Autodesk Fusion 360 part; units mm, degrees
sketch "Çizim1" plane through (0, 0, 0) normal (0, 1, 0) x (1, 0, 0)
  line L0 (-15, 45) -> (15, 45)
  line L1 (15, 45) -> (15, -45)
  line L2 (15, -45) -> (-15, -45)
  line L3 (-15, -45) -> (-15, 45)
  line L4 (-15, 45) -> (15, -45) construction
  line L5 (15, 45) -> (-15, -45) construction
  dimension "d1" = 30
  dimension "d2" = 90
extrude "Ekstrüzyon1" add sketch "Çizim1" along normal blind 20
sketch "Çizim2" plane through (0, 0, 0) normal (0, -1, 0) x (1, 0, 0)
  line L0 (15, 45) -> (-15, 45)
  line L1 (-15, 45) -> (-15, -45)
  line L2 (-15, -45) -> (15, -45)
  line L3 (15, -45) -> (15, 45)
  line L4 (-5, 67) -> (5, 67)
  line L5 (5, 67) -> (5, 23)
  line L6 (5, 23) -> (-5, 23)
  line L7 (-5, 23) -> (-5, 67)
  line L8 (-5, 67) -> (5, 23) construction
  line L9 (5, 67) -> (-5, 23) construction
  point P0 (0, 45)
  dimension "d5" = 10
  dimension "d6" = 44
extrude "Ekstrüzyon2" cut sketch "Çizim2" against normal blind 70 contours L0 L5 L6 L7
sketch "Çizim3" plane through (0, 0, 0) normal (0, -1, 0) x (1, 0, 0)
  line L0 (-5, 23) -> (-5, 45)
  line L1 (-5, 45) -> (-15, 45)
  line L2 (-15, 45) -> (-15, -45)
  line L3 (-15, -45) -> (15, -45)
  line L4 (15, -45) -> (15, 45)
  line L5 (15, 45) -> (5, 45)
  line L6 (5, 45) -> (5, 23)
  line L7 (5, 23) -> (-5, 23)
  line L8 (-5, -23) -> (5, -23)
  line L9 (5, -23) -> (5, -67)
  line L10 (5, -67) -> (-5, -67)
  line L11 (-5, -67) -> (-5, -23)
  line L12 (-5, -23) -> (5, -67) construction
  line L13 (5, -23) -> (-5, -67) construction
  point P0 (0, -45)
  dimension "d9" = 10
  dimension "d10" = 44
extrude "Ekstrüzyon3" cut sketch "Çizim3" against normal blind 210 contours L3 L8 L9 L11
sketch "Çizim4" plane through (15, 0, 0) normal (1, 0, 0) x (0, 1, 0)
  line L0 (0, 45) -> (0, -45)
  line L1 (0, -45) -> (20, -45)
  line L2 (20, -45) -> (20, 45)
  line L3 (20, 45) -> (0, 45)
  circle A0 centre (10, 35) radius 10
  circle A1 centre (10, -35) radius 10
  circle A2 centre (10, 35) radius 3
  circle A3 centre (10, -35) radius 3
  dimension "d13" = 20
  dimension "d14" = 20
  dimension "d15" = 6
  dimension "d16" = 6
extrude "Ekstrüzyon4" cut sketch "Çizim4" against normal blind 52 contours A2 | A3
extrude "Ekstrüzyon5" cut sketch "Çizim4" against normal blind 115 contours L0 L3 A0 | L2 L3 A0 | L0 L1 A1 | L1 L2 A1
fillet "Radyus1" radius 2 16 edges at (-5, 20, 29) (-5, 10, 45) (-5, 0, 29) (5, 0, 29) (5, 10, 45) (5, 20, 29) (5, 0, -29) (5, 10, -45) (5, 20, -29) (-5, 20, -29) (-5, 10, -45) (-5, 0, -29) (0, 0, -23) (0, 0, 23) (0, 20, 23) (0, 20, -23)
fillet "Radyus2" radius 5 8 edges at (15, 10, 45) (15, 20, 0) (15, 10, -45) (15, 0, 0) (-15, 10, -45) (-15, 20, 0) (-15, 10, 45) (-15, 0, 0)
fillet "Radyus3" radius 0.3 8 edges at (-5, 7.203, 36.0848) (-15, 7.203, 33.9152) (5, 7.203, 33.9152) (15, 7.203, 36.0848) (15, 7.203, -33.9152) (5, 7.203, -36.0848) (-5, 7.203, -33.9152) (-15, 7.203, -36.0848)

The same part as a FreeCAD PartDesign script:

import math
import FreeCAD as App
import Part
import Sketcher
from FreeCAD import Vector
Q = App.Units.Quantity


def edges_at(feature, points):
    """Names of the edges that pass closest to the given points."""
    edges = feature.Shape.Edges
    near = lambda p: min(range(len(edges)), key=lambda i: edges[i].distToShape(Part.Vertex(*p))[0])
    return sorted({f"Edge{near(p) + 1}" for p in points})


def add_polygon(sketch, points):
    """Adds a closed chain of lines whose ends are joined by coincident constraints."""
    first, n = sketch.GeometryCount, len(points)
    for a, b in zip(points, points[1:] + points[:1]):
        sketch.addGeometry(Part.LineSegment(App.Vector(*a, 0), App.Vector(*b, 0)), False)
    for i in range(n):
        sketch.addConstraint(Sketcher.Constraint("Coincident", first + i, 2, first + (i + 1) % n, 1))

doc = App.newDocument("Part")
body = doc.addObject("PartDesign::Body", "Body")

# Sketch on XZ plane
sketch1 = body.newObject("Sketcher::SketchObject", "Sketch")
sketch1.AttachmentSupport = (doc.getObject("XZ_Plane"), [""])
sketch1.MapMode = "FlatFace"
add_polygon(sketch1, [(15, -45), (-15, -45), (-15, 45), (15, 45)])  # lines 0-3
sketch1.addConstraint([
    Sketcher.Constraint("Horizontal", 0),
    Sketcher.Constraint("Vertical", 1),
    Sketcher.Constraint("Horizontal", 2),
    Sketcher.Constraint("Vertical", 3),
    Sketcher.Constraint("Symmetric", 0, 2, 2, 2, -1, 1),
    Sketcher.Constraint("DistanceX", 0, 2, 0, 1, Q("30 mm")),
    Sketcher.Constraint("DistanceY", 1, 1, 1, 2, Q("90 mm")),
])
pad1 = body.newObject("PartDesign::Pad", "Pad")
pad1.Profile = sketch1
pad1.Length = 20
pad1.Reversed = True

# Sketch on XZ plane
sketch2 = body.newObject("Sketcher::SketchObject", "Sketch001")
sketch2.AttachmentSupport = (doc.getObject("XZ_Plane"), [""])
sketch2.MapMode = "FlatFace"
add_polygon(sketch2, [(5, 23), (5, 45), (-5, 45), (-5, 23)])  # lines 0-3
sketch2.addConstraint([
    Sketcher.Constraint("Vertical", 0),
    Sketcher.Constraint("Horizontal", 1),
    Sketcher.Constraint("Vertical", 2),
    Sketcher.Constraint("Horizontal", 3),
    Sketcher.Constraint("DistanceX", 1, 2, 1, 1, Q("10 mm")),
    Sketcher.Constraint("DistanceY", 0, 1, 0, 2, Q("22 mm")),
    Sketcher.Constraint("DistanceX", -1, 1, 0, 2, Q("5 mm")),
    Sketcher.Constraint("DistanceY", -1, 1, 0, 2, Q("45 mm")),
])
pocket1 = body.newObject("PartDesign::Pocket", "Pocket")
pocket1.Profile = sketch2
pocket1.Length = 70

# Sketch on XZ plane
sketch3 = body.newObject("Sketcher::SketchObject", "Sketch002")
sketch3.AttachmentSupport = (doc.getObject("XZ_Plane"), [""])
sketch3.MapMode = "FlatFace"
add_polygon(sketch3, [(-5, -23), (-5, -45), (5, -45), (5, -23)])  # lines 0-3
sketch3.addConstraint([
    Sketcher.Constraint("Vertical", 0),
    Sketcher.Constraint("Horizontal", 1),
    Sketcher.Constraint("Vertical", 2),
    Sketcher.Constraint("Horizontal", 3),
    Sketcher.Constraint("DistanceX", 1, 1, 1, 2, Q("10 mm")),
    Sketcher.Constraint("DistanceY", 0, 2, 0, 1, Q("22 mm")),
    Sketcher.Constraint("DistanceX", 0, 2, -1, 1, Q("5 mm")),
    Sketcher.Constraint("DistanceY", 0, 2, -1, 1, Q("45 mm")),
])
pocket2 = body.newObject("PartDesign::Pocket", "Pocket001")
pocket2.Profile = sketch3
pocket2.Length = 210

# Sketch on YZ plane
sketch4 = body.newObject("Sketcher::SketchObject", "Sketch003")
sketch4.AttachmentSupport = (doc.getObject("YZ_Plane"), [""])
sketch4.MapMode = "FlatFace"
sketch4.AttachmentOffset = App.Placement(Vector(0, 0, 15), App.Rotation())
sketch4.addGeometry([
    Part.Circle(Vector(10, 35, 0), Vector(0, 0, 1), 3),
    Part.Circle(Vector(10, -35, 0), Vector(0, 0, 1), 3),
], False)
sketch4.addConstraint([
    Sketcher.Constraint("Equal", 0, 1),
    Sketcher.Constraint("Symmetric", 0, 3, 1, 3, -1),
    Sketcher.Constraint("Diameter", 0, Q("6 mm")),
    Sketcher.Constraint("DistanceX", -1, 1, 0, 3, Q("10 mm")),
    Sketcher.Constraint("DistanceY", -1, 1, 0, 3, Q("35 mm")),
])
pocket3 = body.newObject("PartDesign::Pocket", "Pocket002")
pocket3.Profile = sketch4
pocket3.Length = 52

# Sketch on YZ plane
sketch5 = body.newObject("Sketcher::SketchObject", "Sketch004")
sketch5.AttachmentSupport = (doc.getObject("YZ_Plane"), [""])
sketch5.MapMode = "FlatFace"
sketch5.AttachmentOffset = App.Placement(Vector(0, 0, 15), App.Rotation())
sketch5.addGeometry([
    Part.LineSegment(Vector(10, 45, 0), Vector(0, 45, 0)),  # 0
    Part.LineSegment(Vector(0, 45, 0), Vector(0, 35, 0)),  # 1
    Part.ArcOfCircle(Part.Circle(Vector(10, 35, 0), Vector(0, 0, 1), 10), math.radians(90), math.radians(180)),  # 2
    Part.LineSegment(Vector(20, 45, 0), Vector(10, 45, 0)),  # 3
    Part.ArcOfCircle(Part.Circle(Vector(10, 35, 0), Vector(0, 0, 1), 10), math.radians(0), math.radians(90)),  # 4
    Part.LineSegment(Vector(20, 35, 0), Vector(20, 45, 0)),  # 5
    Part.ArcOfCircle(Part.Circle(Vector(10, -35, 0), Vector(0, 0, 1), 10), math.radians(180), math.radians(270)),  # 6
    Part.LineSegment(Vector(0, -35, 0), Vector(0, -45, 0)),  # 7
    Part.LineSegment(Vector(0, -45, 0), Vector(10, -45, 0)),  # 8
    Part.LineSegment(Vector(20, -45, 0), Vector(20, -35, 0)),  # 9
    Part.ArcOfCircle(Part.Circle(Vector(10, -35, 0), Vector(0, 0, 1), 10), math.radians(-90), math.radians(0)),  # 10
    Part.LineSegment(Vector(10, -45, 0), Vector(20, -45, 0)),  # 11
], False)
sketch5.addConstraint([
    Sketcher.Constraint("Coincident", 0, 2, 1, 1),
    Sketcher.Constraint("Tangent", 1, 2, 2, 2),
    Sketcher.Constraint("Tangent", 2, 1, 0, 1),
    Sketcher.Constraint("Tangent", 3, 2, 4, 2),
    Sketcher.Constraint("Tangent", 4, 1, 5, 1),
    Sketcher.Constraint("Coincident", 5, 2, 3, 1),
    Sketcher.Constraint("Tangent", 6, 1, 7, 1),
    Sketcher.Constraint("Coincident", 7, 2, 8, 1),
    Sketcher.Constraint("Tangent", 8, 2, 6, 2),
    Sketcher.Constraint("Tangent", 9, 2, 10, 2),
    Sketcher.Constraint("Tangent", 10, 1, 11, 1),
    Sketcher.Constraint("Coincident", 11, 2, 9, 1),
    Sketcher.Constraint("Horizontal", 0),
    Sketcher.Constraint("Vertical", 1),
    Sketcher.Constraint("Horizontal", 3),
    Sketcher.Constraint("Vertical", 5),
    Sketcher.Constraint("Vertical", 7),
    Sketcher.Constraint("Horizontal", 8),
    Sketcher.Constraint("Vertical", 9),
    Sketcher.Constraint("Horizontal", 11),
    Sketcher.Constraint("Coincident", 4, 3, 2, 3),
    Sketcher.Constraint("Coincident", 10, 3, 6, 3),
    Sketcher.Constraint("Equal", 2, 4),
    Sketcher.Constraint("Equal", 4, 6),
    Sketcher.Constraint("Equal", 6, 10),
    Sketcher.Constraint("Symmetric", 1, 2, 6, 1, -1, 1),
    Sketcher.Constraint("PointOnObject", 0, 2, -2),
    Sketcher.Constraint("Radius", 2, Q("10 mm")),
    Sketcher.Constraint("DistanceY", -1, 1, 2, 3, Q("35 mm")),
])
pocket4 = body.newObject("PartDesign::Pocket", "Pocket003")
pocket4.Profile = sketch5
pocket4.Length = 115
doc.recompute()

fillet = body.newObject("PartDesign::Fillet", "Fillet")
fillet.Base = (pocket4, edges_at(pocket4, [
    (-5, 20, 29),
    (-5, 10, 45),
    (-5, 0, 29),
    (5, 0, 29),
    (5, 10, 45),
    (5, 20, 29),
    (5, 0, -29),
    (5, 10, -45),
    (5, 20, -29),
    (-5, 20, -29),
    (-5, 10, -45),
    (-5, 0, -29),
    (0, 0, -23),
    (0, 0, 23),
    (0, 20, 23),
    (0, 20, -23),
]))
fillet.Radius = 2
doc.recompute()

fillet2 = body.newObject("PartDesign::Fillet", "Fillet001")
fillet2.Base = (fillet, edges_at(fillet, [
    (15, 10, 45),
    (15, 20, 0),
    (15, 10, -45),
    (15, 0, 0),
    (-15, 10, -45),
    (-15, 20, 0),
    (-15, 10, 45),
    (-15, 0, 0),
]))
fillet2.Radius = 5
doc.recompute()

fillet3 = body.newObject("PartDesign::Fillet", "Fillet002")
fillet3.Base = (fillet2, edges_at(fillet2, [
    (-5, 7.203, 36.085),
    (-15, 7.203, 33.915),
    (5, 7.203, 33.915),
    (15, 7.203, 36.085),
    (15, 7.203, -33.915),
    (5, 7.203, -36.085),
    (-5, 7.203, -33.915),
    (-15, 7.203, -36.085),
]))
fillet3.Radius = 0.3

doc.recompute()
